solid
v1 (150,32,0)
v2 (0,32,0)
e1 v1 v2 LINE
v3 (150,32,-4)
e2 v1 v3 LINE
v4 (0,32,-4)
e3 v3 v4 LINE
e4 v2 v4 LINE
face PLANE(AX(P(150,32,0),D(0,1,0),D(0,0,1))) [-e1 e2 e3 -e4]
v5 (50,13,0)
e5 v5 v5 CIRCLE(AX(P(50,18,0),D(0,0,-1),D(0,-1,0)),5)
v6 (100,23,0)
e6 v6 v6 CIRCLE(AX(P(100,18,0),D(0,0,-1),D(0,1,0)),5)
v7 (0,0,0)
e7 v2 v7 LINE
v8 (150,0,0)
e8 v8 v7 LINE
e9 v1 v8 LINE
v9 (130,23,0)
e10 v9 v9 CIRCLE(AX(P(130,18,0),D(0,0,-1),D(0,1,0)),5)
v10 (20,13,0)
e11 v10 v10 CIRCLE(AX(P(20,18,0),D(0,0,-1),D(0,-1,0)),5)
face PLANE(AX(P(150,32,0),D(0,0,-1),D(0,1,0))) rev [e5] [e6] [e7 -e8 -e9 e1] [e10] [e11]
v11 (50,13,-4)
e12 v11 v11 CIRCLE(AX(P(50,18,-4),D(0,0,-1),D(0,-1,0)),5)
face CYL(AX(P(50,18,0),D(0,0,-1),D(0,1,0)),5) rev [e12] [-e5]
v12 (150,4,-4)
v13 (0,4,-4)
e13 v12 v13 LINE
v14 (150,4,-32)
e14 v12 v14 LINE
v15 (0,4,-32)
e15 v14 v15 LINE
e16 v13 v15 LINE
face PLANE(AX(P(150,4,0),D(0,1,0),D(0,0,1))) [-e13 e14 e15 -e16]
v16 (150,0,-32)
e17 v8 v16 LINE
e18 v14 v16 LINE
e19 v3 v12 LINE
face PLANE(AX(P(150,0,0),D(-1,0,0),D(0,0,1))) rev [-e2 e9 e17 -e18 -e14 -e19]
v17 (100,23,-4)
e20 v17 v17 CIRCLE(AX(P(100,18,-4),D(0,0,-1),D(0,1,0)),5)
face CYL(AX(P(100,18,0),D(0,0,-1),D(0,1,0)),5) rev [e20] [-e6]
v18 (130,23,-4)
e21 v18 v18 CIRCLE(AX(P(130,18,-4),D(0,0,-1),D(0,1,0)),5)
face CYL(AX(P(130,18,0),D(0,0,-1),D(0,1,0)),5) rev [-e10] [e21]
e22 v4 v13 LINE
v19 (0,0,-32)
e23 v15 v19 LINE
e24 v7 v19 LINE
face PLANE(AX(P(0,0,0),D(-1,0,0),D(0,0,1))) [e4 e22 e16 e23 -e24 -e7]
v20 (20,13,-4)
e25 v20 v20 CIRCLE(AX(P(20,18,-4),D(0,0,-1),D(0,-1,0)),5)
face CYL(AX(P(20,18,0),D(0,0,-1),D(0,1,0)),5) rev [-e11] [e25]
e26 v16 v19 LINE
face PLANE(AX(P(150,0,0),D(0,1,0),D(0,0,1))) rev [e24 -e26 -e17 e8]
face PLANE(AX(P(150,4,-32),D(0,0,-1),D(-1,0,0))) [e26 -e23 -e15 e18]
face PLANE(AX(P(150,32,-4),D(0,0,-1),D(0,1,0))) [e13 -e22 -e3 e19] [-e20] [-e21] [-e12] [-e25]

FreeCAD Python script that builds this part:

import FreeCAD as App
import Part
import Sketcher

V = App.Vector
Q = App.Units.Quantity


def add_polygon(sketch, points):
    """Adds a closed chain of lines whose ends are joined by coincident constraints."""
    first, n = sketch.GeometryCount, len(points)
    for a, b in zip(points, points[1:] + points[:1]):
        sketch.addGeometry(Part.LineSegment(App.Vector(*a, 0), App.Vector(*b, 0)), False)
    for i in range(n):
        sketch.addConstraint(Sketcher.Constraint("Coincident", first + i, 2, first + (i + 1) % n, 1))

doc = App.newDocument("Part")
body = doc.addObject("PartDesign::Body", "Body")

sketch1 = body.newObject("Sketcher::SketchObject", "Sketch")
sketch1.AttachmentSupport = (doc.getObject("YZ_Plane"), [""])
sketch1.MapMode = "FlatFace"
add_polygon(sketch1, [(32, 0), (0, 0), (0, -32), (4, -32), (4, -4), (32, -4)])
sketch1.addConstraint(Sketcher.Constraint("Horizontal", 0))
sketch1.addConstraint(Sketcher.Constraint("Vertical", 1))
sketch1.addConstraint(Sketcher.Constraint("Horizontal", 2))
sketch1.addConstraint(Sketcher.Constraint("Vertical", 3))
sketch1.addConstraint(Sketcher.Constraint("Horizontal", 4))
sketch1.addConstraint(Sketcher.Constraint("Vertical", 5))
sketch1.addConstraint(Sketcher.Constraint("Coincident", 0, 2, -1, 1))
sketch1.addConstraint(Sketcher.Constraint("Equal", 0, 1))
sketch1.addConstraint(Sketcher.Constraint("Equal", 4, 3))
sketch1.addConstraint(Sketcher.Constraint("DistanceX", 0, 2, 0, 1, Q("32 mm")))
sketch1.addConstraint(Sketcher.Constraint("DistanceX", 2, 1, 2, 2, Q("4 mm")))
pad1 = body.newObject("PartDesign::Pad", "Pad")
pad1.Profile = sketch1
pad1.Length = 150

sketch2 = body.newObject("Sketcher::SketchObject", "Sketch001")
sketch2.AttachmentSupport = (doc.getObject("XY_Plane"), [""])
sketch2.MapMode = "FlatFace"
sketch2.AttachmentOffset = App.Placement(V(0, 0, -4), App.Rotation())
sketch2.addGeometry(Part.Circle(V(130, 18, 0), V(0, 0, 1), 5), False)
sketch2.addGeometry(Part.Circle(V(100, 18, 0), V(0, 0, 1), 5), False)
sketch2.addGeometry(Part.Circle(V(50, 18, 0), V(0, 0, 1), 5), False)
sketch2.addGeometry(Part.Circle(V(20, 18, 0), V(0, 0, 1), 5), False)
sketch2.addConstraint(Sketcher.Constraint("Equal", 0, 1))
sketch2.addConstraint(Sketcher.Constraint("Equal", 1, 2))
sketch2.addConstraint(Sketcher.Constraint("Equal", 2, 3))
sketch2.addConstraint(Sketcher.Constraint("Horizontal", 0, 3, 1, 3))
sketch2.addConstraint(Sketcher.Constraint("Horizontal", 1, 3, 2, 3))
sketch2.addConstraint(Sketcher.Constraint("Horizontal", 2, 3, 3, 3))
sketch2.addConstraint(Sketcher.Constraint("Diameter", 0, Q("10 mm")))
sketch2.addConstraint(Sketcher.Constraint("DistanceX", -1, 1, 0, 3, Q("130 mm")))
sketch2.addConstraint(Sketcher.Constraint("DistanceY", -1, 1, 0, 3, Q("18 mm")))
sketch2.addConstraint(Sketcher.Constraint("DistanceX", -1, 1, 1, 3, Q("100 mm")))
sketch2.addConstraint(Sketcher.Constraint("DistanceX", -1, 1, 2, 3, Q("50 mm")))
sketch2.addConstraint(Sketcher.Constraint("DistanceX", -1, 1, 3, 3, Q("20 mm")))
pocket1 = body.newObject("PartDesign::Pocket", "Pocket")
pocket1.Profile = sketch2
pocket1.Type = "ThroughAll"
pocket1.Reversed = True

doc.recompute()
